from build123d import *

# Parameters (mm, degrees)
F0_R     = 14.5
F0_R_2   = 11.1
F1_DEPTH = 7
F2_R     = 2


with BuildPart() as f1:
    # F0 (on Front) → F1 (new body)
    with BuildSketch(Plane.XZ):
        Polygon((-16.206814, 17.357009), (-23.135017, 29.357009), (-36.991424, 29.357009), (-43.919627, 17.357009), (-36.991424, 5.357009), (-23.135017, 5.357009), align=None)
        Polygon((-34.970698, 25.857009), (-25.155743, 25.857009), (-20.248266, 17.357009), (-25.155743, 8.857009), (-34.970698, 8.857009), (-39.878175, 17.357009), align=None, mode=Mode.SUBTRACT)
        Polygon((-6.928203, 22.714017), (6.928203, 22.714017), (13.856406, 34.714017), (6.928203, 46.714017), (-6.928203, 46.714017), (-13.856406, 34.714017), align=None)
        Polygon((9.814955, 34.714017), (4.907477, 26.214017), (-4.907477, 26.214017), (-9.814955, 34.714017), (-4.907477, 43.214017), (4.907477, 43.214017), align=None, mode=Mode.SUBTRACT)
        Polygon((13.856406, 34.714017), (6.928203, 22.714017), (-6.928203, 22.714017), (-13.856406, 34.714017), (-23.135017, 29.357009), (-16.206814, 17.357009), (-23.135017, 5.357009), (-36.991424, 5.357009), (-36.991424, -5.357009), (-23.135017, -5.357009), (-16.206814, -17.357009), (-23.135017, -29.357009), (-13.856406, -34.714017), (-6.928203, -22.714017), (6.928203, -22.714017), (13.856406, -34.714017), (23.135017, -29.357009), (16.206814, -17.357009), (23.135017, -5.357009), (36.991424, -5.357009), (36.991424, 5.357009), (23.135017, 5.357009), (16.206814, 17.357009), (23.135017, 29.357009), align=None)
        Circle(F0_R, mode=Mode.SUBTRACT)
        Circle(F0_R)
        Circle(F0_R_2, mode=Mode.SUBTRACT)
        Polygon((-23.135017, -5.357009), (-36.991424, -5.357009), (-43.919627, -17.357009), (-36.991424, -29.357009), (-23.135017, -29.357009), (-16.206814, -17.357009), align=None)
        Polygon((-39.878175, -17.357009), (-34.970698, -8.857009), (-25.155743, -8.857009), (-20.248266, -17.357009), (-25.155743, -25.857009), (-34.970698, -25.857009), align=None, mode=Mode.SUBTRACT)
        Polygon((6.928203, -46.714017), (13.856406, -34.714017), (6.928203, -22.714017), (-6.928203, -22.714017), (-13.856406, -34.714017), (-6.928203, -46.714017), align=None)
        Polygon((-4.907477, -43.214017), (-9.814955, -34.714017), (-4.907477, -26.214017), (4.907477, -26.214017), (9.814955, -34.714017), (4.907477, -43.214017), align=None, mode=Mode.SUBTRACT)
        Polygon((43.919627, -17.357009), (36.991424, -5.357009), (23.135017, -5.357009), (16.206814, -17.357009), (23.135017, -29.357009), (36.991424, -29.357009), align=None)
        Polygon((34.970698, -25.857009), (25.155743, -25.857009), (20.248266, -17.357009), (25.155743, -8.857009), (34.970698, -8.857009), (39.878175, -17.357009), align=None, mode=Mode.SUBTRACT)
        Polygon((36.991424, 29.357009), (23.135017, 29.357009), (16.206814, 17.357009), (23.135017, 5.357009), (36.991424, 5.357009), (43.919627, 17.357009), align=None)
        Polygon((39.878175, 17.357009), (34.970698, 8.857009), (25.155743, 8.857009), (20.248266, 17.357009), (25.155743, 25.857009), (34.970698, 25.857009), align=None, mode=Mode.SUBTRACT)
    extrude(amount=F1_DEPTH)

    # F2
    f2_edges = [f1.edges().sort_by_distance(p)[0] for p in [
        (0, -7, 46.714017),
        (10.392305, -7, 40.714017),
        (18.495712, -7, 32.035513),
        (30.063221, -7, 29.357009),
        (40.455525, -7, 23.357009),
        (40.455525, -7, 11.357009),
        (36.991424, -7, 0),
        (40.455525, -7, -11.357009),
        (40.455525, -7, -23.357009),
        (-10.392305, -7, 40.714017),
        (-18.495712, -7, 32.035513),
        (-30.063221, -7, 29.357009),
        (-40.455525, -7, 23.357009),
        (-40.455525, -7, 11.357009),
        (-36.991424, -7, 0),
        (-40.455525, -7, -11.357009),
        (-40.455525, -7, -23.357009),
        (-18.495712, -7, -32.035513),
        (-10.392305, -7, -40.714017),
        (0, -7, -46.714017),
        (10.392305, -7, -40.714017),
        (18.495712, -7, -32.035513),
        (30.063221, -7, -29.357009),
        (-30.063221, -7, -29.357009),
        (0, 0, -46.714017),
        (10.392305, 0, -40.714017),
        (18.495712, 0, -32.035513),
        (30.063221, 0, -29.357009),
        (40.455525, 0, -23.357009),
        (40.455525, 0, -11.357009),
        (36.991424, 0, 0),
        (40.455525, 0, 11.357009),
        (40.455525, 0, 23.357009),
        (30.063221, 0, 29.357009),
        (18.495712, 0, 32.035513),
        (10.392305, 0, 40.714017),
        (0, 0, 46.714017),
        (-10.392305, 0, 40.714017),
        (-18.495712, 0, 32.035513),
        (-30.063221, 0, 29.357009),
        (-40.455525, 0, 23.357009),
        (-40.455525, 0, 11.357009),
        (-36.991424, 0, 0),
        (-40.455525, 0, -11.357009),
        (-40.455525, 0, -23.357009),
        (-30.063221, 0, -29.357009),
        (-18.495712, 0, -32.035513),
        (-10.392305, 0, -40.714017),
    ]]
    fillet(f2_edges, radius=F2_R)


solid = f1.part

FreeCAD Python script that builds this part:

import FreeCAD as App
import Part
import Sketcher

V = App.Vector
Q = App.Units.Quantity


def edges_at(feature, points):
    """Names of the edges that pass closest to the given points."""
    edges = feature.Shape.Edges
    near = lambda p: min(range(len(edges)), key=lambda i: edges[i].distToShape(Part.Vertex(*p))[0])
    return sorted({f"Edge{near(p) + 1}" for p in points})

doc = App.newDocument("Part")
body = doc.addObject("PartDesign::Body", "Body")

# Sketch on XZ plane
sketch1 = body.newObject("Sketcher::SketchObject", "Sketch")
sketch1.AttachmentSupport = (doc.getObject("XZ_Plane"), [""])
sketch1.MapMode = "FlatFace"
sketch1.addGeometry([
    Part.LineSegment(V(-23, 29, 0), V(-37, 29, 0)),  # 0
    Part.LineSegment(V(-37, 29, 0), V(-44, 17, 0)),  # 1
    Part.LineSegment(V(-44, 17, 0), V(-37, 5, 0)),  # 2
    Part.LineSegment(V(-37, 5, 0), V(-37, -5, 0)),  # 3
    Part.LineSegment(V(-37, -5, 0), V(-44, -17, 0)),  # 4
    Part.LineSegment(V(-44, -17, 0), V(-37, -29, 0)),  # 5
    Part.LineSegment(V(-37, -29, 0), V(-23, -29, 0)),  # 6
    Part.LineSegment(V(-23, -29, 0), V(-14, -35, 0)),  # 7
    Part.LineSegment(V(-14, -35, 0), V(-7, -47, 0)),  # 8
    Part.LineSegment(V(-7, -47, 0), V(7, -47, 0)),  # 9
    Part.LineSegment(V(7, -47, 0), V(14, -35, 0)),  # 10
    Part.LineSegment(V(14, -35, 0), V(23, -29, 0)),  # 11
    Part.LineSegment(V(23, -29, 0), V(37, -29, 0)),  # 12
    Part.LineSegment(V(37, -29, 0), V(44, -17, 0)),  # 13
    Part.LineSegment(V(44, -17, 0), V(37, -5, 0)),  # 14
    Part.LineSegment(V(37, -5, 0), V(37, 5, 0)),  # 15
    Part.LineSegment(V(37, 5, 0), V(44, 17, 0)),  # 16
    Part.LineSegment(V(44, 17, 0), V(37, 29, 0)),  # 17
    Part.LineSegment(V(37, 29, 0), V(23, 29, 0)),  # 18
    Part.LineSegment(V(23, 29, 0), V(14, 35, 0)),  # 19
    Part.LineSegment(V(14, 35, 0), V(7, 47, 0)),  # 20
    Part.LineSegment(V(7, 47, 0), V(-7, 47, 0)),  # 21
    Part.LineSegment(V(-7, 47, 0), V(-14, 35, 0)),  # 22
    Part.LineSegment(V(-14, 35, 0), V(-23, 29, 0)),  # 23
    Part.LineSegment(V(-35, -26, 0), V(-40, -17, 0)),  # 24
    Part.LineSegment(V(-40, -17, 0), V(-35, -9, 0)),  # 25
    Part.LineSegment(V(-35, -9, 0), V(-25, -9, 0)),  # 26
    Part.LineSegment(V(-25, -9, 0), V(-20, -17, 0)),  # 27
    Part.LineSegment(V(-20, -17, 0), V(-25, -26, 0)),  # 28
    Part.LineSegment(V(-25, -26, 0), V(-35, -26, 0)),  # 29
    Part.LineSegment(V(5, -43, 0), V(-5, -43, 0)),  # 30
    Part.LineSegment(V(-5, -43, 0), V(-10, -35, 0)),  # 31
    Part.LineSegment(V(-10, -35, 0), V(-5, -26, 0)),  # 32
    Part.LineSegment(V(-5, -26, 0), V(5, -26, 0)),  # 33
    Part.LineSegment(V(5, -26, 0), V(10, -35, 0)),  # 34
    Part.LineSegment(V(10, -35, 0), V(5, -43, 0)),  # 35
    Part.LineSegment(V(40, -17, 0), V(35, -26, 0)),  # 36
    Part.LineSegment(V(35, -26, 0), V(25, -26, 0)),  # 37
    Part.LineSegment(V(25, -26, 0), V(20, -17, 0)),  # 38
    Part.LineSegment(V(20, -17, 0), V(25, -9, 0)),  # 39
    Part.LineSegment(V(25, -9, 0), V(35, -9, 0)),  # 40
    Part.LineSegment(V(35, -9, 0), V(40, -17, 0)),  # 41
    Part.LineSegment(V(-40, 17, 0), V(-35, 26, 0)),  # 42
    Part.LineSegment(V(-35, 26, 0), V(-25, 26, 0)),  # 43
    Part.LineSegment(V(-25, 26, 0), V(-20, 17, 0)),  # 44
    Part.LineSegment(V(-20, 17, 0), V(-25, 9, 0)),  # 45
    Part.LineSegment(V(-25, 9, 0), V(-35, 9, 0)),  # 46
    Part.LineSegment(V(-35, 9, 0), V(-40, 17, 0)),  # 47
    Part.Circle(V(0, 0, 0), V(0, 0, 1), 11),  # 48
    Part.LineSegment(V(35, 26, 0), V(40, 17, 0)),  # 49
    Part.LineSegment(V(40, 17, 0), V(35, 9, 0)),  # 50
    Part.LineSegment(V(35, 9, 0), V(25, 9, 0)),  # 51
    Part.LineSegment(V(25, 9, 0), V(20, 17, 0)),  # 52
    Part.LineSegment(V(20, 17, 0), V(25, 26, 0)),  # 53
    Part.LineSegment(V(25, 26, 0), V(35, 26, 0)),  # 54
    Part.LineSegment(V(5, 26, 0), V(-5, 26, 0)),  # 55
    Part.LineSegment(V(-5, 26, 0), V(-10, 35, 0)),  # 56
    Part.LineSegment(V(-10, 35, 0), V(-5, 43, 0)),  # 57
    Part.LineSegment(V(-5, 43, 0), V(5, 43, 0)),  # 58
    Part.LineSegment(V(5, 43, 0), V(10, 35, 0)),  # 59
    Part.LineSegment(V(10, 35, 0), V(5, 26, 0)),  # 60
], False)
sketch1.addConstraint([
    Sketcher.Constraint("Coincident", 0, 2, 1, 1),
    Sketcher.Constraint("Coincident", 1, 2, 2, 1),
    Sketcher.Constraint("Coincident", 2, 2, 3, 1),
    Sketcher.Constraint("Coincident", 3, 2, 4, 1),
    Sketcher.Constraint("Coincident", 4, 2, 5, 1),
    Sketcher.Constraint("Coincident", 5, 2, 6, 1),
    Sketcher.Constraint("Coincident", 6, 2, 7, 1),
    Sketcher.Constraint("Coincident", 7, 2, 8, 1),
    Sketcher.Constraint("Coincident", 8, 2, 9, 1),
    Sketcher.Constraint("Coincident", 9, 2, 10, 1),
    Sketcher.Constraint("Coincident", 10, 2, 11, 1),
    Sketcher.Constraint("Coincident", 11, 2, 12, 1),
    Sketcher.Constraint("Coincident", 12, 2, 13, 1),
    Sketcher.Constraint("Coincident", 13, 2, 14, 1),
    Sketcher.Constraint("Coincident", 14, 2, 15, 1),
    Sketcher.Constraint("Coincident", 15, 2, 16, 1),
    Sketcher.Constraint("Coincident", 16, 2, 17, 1),
    Sketcher.Constraint("Coincident", 17, 2, 18, 1),
    Sketcher.Constraint("Coincident", 18, 2, 19, 1),
    Sketcher.Constraint("Coincident", 19, 2, 20, 1),
    Sketcher.Constraint("Coincident", 20, 2, 21, 1),
    Sketcher.Constraint("Coincident", 21, 2, 22, 1),
    Sketcher.Constraint("Coincident", 22, 2, 23, 1),
    Sketcher.Constraint("Coincident", 23, 2, 0, 1),
    Sketcher.Constraint("Coincident", 24, 2, 25, 1),
    Sketcher.Constraint("Coincident", 25, 2, 26, 1),
    Sketcher.Constraint("Coincident", 26, 2, 27, 1),
    Sketcher.Constraint("Coincident", 27, 2, 28, 1),
    Sketcher.Constraint("Coincident", 28, 2, 29, 1),
    Sketcher.Constraint("Coincident", 29, 2, 24, 1),
    Sketcher.Constraint("Coincident", 30, 2, 31, 1),
    Sketcher.Constraint("Coincident", 31, 2, 32, 1),
    Sketcher.Constraint("Coincident", 32, 2, 33, 1),
    Sketcher.Constraint("Coincident", 33, 2, 34, 1),
    Sketcher.Constraint("Coincident", 34, 2, 35, 1),
    Sketcher.Constraint("Coincident", 35, 2, 30, 1),
    Sketcher.Constraint("Coincident", 36, 2, 37, 1),
    Sketcher.Constraint("Coincident", 37, 2, 38, 1),
    Sketcher.Constraint("Coincident", 38, 2, 39, 1),
    Sketcher.Constraint("Coincident", 39, 2, 40, 1),
    Sketcher.Constraint("Coincident", 40, 2, 41, 1),
    Sketcher.Constraint("Coincident", 41, 2, 36, 1),
    Sketcher.Constraint("Coincident", 42, 2, 43, 1),
    Sketcher.Constraint("Coincident", 43, 2, 44, 1),
    Sketcher.Constraint("Coincident", 44, 2, 45, 1),
    Sketcher.Constraint("Coincident", 45, 2, 46, 1),
    Sketcher.Constraint("Coincident", 46, 2, 47, 1),
    Sketcher.Constraint("Coincident", 47, 2, 42, 1),
    Sketcher.Constraint("Coincident", 49, 2, 50, 1),
    Sketcher.Constraint("Coincident", 50, 2, 51, 1),
    Sketcher.Constraint("Coincident", 51, 2, 52, 1),
    Sketcher.Constraint("Coincident", 52, 2, 53, 1),
    Sketcher.Constraint("Coincident", 53, 2, 54, 1),
    Sketcher.Constraint("Coincident", 54, 2, 49, 1),
    Sketcher.Constraint("Coincident", 55, 2, 56, 1),
    Sketcher.Constraint("Coincident", 56, 2, 57, 1),
    Sketcher.Constraint("Coincident", 57, 2, 58, 1),
    Sketcher.Constraint("Coincident", 58, 2, 59, 1),
    Sketcher.Constraint("Coincident", 59, 2, 60, 1),
    Sketcher.Constraint("Coincident", 60, 2, 55, 1),
    Sketcher.Constraint("Horizontal", 0),
    Sketcher.Constraint("Vertical", 3),
    Sketcher.Constraint("Horizontal", 6),
    Sketcher.Constraint("Horizontal", 9),
    Sketcher.Constraint("Horizontal", 12),
    Sketcher.Constraint("Vertical", 15),
    Sketcher.Constraint("Horizontal", 18),
    Sketcher.Constraint("Horizontal", 21),
    Sketcher.Constraint("Horizontal", 26),
    Sketcher.Constraint("Horizontal", 29),
    Sketcher.Constraint("Horizontal", 30),
    Sketcher.Constraint("Horizontal", 33),
    Sketcher.Constraint("Horizontal", 37),
    Sketcher.Constraint("Horizontal", 40),
    Sketcher.Constraint("Horizontal", 43),
    Sketcher.Constraint("Horizontal", 46),
    Sketcher.Constraint("Horizontal", 51),
    Sketcher.Constraint("Horizontal", 54),
    Sketcher.Constraint("Horizontal", 55),
    Sketcher.Constraint("Horizontal", 58),
    Sketcher.Constraint("Coincident", 48, 3, -1, 1),
    Sketcher.Constraint("Symmetric", 0, 2, 12, 2, -1, 1),
    Sketcher.Constraint("Symmetric", 1, 2, 13, 2, -1, 1),
    Sketcher.Constraint("Symmetric", 2, 2, 14, 2, -1, 1),
    Sketcher.Constraint("Symmetric", 4, 2, 16, 2, -1, 1),
    Sketcher.Constraint("Symmetric", 5, 2, 17, 2, -1, 1),
    Sketcher.Constraint("Symmetric", 7, 2, 19, 2, -1, 1),
    Sketcher.Constraint("Symmetric", 8, 2, 20, 2, -1, 1),
    Sketcher.Constraint("Symmetric", 10, 2, 22, 2, -1, 1),
    Sketcher.Constraint("Symmetric", 36, 2, 42, 2, -1, 1),
    Sketcher.Constraint("Symmetric", 38, 2, 44, 2, -1, 1),
    Sketcher.Constraint("Symmetric", 39, 2, 45, 2, -1, 1),
    Sketcher.Constraint("Symmetric", 41, 2, 47, 2, -1, 1),
    Sketcher.Constraint("Symmetric", 24, 2, 49, 2, -1, 1),
    Sketcher.Constraint("Symmetric", 25, 2, 50, 2, -1, 1),
    Sketcher.Constraint("Symmetric", 27, 2, 52, 2, -1, 1),
    Sketcher.Constraint("Symmetric", 28, 2, 53, 2, -1, 1),
    Sketcher.Constraint("Symmetric", 33, 2, 55, 2, -1, 1),
    Sketcher.Constraint("Symmetric", 34, 2, 56, 2, -1, 1),
    Sketcher.Constraint("Symmetric", 35, 2, 57, 2, -1, 1),
    Sketcher.Constraint("Symmetric", 31, 2, 59, 2, -1, 1),
    Sketcher.Constraint("Symmetric", 7, 2, 10, 2, -2),
    Sketcher.Constraint("Symmetric", 6, 2, 11, 2, -2),
    Sketcher.Constraint("Symmetric", 4, 2, 13, 2, -2),
    Sketcher.Constraint("Symmetric", 31, 2, 34, 2, -2),
    Sketcher.Constraint("Symmetric", 29, 2, 36, 2, -2),
    Sketcher.Constraint("Symmetric", 27, 2, 38, 2, -2),
    Sketcher.Constraint("Symmetric", 26, 2, 39, 2, -2),
    Sketcher.Constraint("Symmetric", 24, 2, 41, 2, -2),
    Sketcher.Constraint("Parallel", 1, 4),
    Sketcher.Constraint("Parallel", 2, 5),
    Sketcher.Constraint("Perpendicular", 4, 7),
    Sketcher.Constraint("Parallel", 5, 8),
    Sketcher.Constraint("Perpendicular", 7, 10),
    Sketcher.Constraint("Perpendicular", 8, 11),
    Sketcher.Constraint("Parallel", 13, 16),
    Sketcher.Constraint("Perpendicular", 16, 19),
    Sketcher.Constraint("Perpendicular", 19, 22),
    Sketcher.Constraint("Perpendicular", 20, 23),
    Sketcher.Constraint("Perpendicular", 23, 24),
    Sketcher.Constraint("Parallel", 22, 25),
    Sketcher.Constraint("Parallel", 24, 27),
    Sketcher.Constraint("Parallel", 25, 28),
    Sketcher.Constraint("Parallel", 27, 31),
    Sketcher.Constraint("Parallel", 28, 32),
    Sketcher.Constraint("Parallel", 31, 34),
    Sketcher.Constraint("Parallel", 32, 35),
    Sketcher.Constraint("Parallel", 34, 38),
    Sketcher.Constraint("Parallel", 38, 41),
    Sketcher.Constraint("Parallel", 41, 44),
    Sketcher.Constraint("Parallel", 44, 47),
    Sketcher.Constraint("Parallel", 47, 49),
    Sketcher.Constraint("Parallel", 49, 52),
    Sketcher.Constraint("Parallel", 56, 59),
    Sketcher.Constraint("Parallel", 57, 60),
    Sketcher.Constraint("Horizontal", 13, 2, 24, 2),
    Sketcher.Constraint("Horizontal", 24, 2, 27, 2),
    Sketcher.Constraint("Horizontal", 10, 2, 31, 2),
    Sketcher.Constraint("Vertical", 0, 2, 2, 2),
    Sketcher.Constraint("Vertical", 26, 2, 28, 2),
    Sketcher.Constraint("Vertical", 30, 2, 32, 2),
    Sketcher.Constraint("Equal", 6, 9),
    Sketcher.Constraint("Equal", 29, 30),
    Sketcher.Constraint("Equal", 5, 8),
    Sketcher.Constraint("Equal", 28, 31),
    Sketcher.Constraint("Diameter", 48, Q("22.2 mm")),
    Sketcher.Constraint("Angle", 1, Q("-119.999999 deg")),
    Sketcher.Constraint("DistanceX", 0, 2, 0, 1, Q("13.856407 mm")),
    Sketcher.Constraint("DistanceX", 26, 1, 26, 2, Q("9.814955 mm")),
    Sketcher.Constraint("DistanceY", 3, 2, 3, 1, Q("10.714018 mm")),
    Sketcher.Constraint("DistanceY", -1, 1, 0, 2, Q("29.357009 mm")),
    Sketcher.Constraint("DistanceY", 25, 2, -1, 1, Q("8.857009 mm")),
    Sketcher.Constraint("Distance", 7, Q("10.714017 mm")),
    Sketcher.Constraint("DistanceX", 24, 2, -1, 1, Q("39.878175 mm")),
])
pad1 = body.newObject("PartDesign::Pad", "Pad")
pad1.Profile = sketch1
pad1.Length = 7
doc.recompute()

fillet = body.newObject("PartDesign::Fillet", "Fillet")
fillet.Base = (pad1, edges_at(pad1, [
    (0, -7, 46.714),
    (10.392, -7, 40.714),
    (18.496, -7, 32.036),
    (30.063, -7, 29.357),
    (40.456, -7, 23.357),
    (40.456, -7, 11.357),
    (36.991, -7, 0),
    (40.456, -7, -11.357),
    (40.456, -7, -23.357),
    (-10.392, -7, 40.714),
    (-18.496, -7, 32.036),
    (-30.063, -7, 29.357),
    (-40.456, -7, 23.357),
    (-40.456, -7, 11.357),
    (-36.991, -7, 0),
    (-40.456, -7, -11.357),
    (-40.456, -7, -23.357),
    (-18.496, -7, -32.036),
    (-10.392, -7, -40.714),
    (0, -7, -46.714),
    (10.392, -7, -40.714),
    (18.496, -7, -32.036),
    (30.063, -7, -29.357),
    (-30.063, -7, -29.357),
    (0, 0, -46.714),
    (10.392, 0, -40.714),
    (18.496, 0, -32.036),
    (30.063, 0, -29.357),
    (40.456, 0, -23.357),
    (40.456, 0, -11.357),
    (36.991, 0, 0),
    (40.456, 0, 11.357),
    (40.456, 0, 23.357),
    (30.063, 0, 29.357),
    (18.496, 0, 32.036),
    (10.392, 0, 40.714),
    (0, 0, 46.714),
    (-10.392, 0, 40.714),
    (-18.496, 0, 32.036),
    (-30.063, 0, 29.357),
    (-40.456, 0, 23.357),
    (-40.456, 0, 11.357),
    (-36.991, 0, 0),
    (-40.456, 0, -11.357),
    (-40.456, 0, -23.357),
    (-30.063, 0, -29.357),
    (-18.496, 0, -32.036),
    (-10.392, 0, -40.714),
]))
fillet.Radius = 2

doc.recompute()
